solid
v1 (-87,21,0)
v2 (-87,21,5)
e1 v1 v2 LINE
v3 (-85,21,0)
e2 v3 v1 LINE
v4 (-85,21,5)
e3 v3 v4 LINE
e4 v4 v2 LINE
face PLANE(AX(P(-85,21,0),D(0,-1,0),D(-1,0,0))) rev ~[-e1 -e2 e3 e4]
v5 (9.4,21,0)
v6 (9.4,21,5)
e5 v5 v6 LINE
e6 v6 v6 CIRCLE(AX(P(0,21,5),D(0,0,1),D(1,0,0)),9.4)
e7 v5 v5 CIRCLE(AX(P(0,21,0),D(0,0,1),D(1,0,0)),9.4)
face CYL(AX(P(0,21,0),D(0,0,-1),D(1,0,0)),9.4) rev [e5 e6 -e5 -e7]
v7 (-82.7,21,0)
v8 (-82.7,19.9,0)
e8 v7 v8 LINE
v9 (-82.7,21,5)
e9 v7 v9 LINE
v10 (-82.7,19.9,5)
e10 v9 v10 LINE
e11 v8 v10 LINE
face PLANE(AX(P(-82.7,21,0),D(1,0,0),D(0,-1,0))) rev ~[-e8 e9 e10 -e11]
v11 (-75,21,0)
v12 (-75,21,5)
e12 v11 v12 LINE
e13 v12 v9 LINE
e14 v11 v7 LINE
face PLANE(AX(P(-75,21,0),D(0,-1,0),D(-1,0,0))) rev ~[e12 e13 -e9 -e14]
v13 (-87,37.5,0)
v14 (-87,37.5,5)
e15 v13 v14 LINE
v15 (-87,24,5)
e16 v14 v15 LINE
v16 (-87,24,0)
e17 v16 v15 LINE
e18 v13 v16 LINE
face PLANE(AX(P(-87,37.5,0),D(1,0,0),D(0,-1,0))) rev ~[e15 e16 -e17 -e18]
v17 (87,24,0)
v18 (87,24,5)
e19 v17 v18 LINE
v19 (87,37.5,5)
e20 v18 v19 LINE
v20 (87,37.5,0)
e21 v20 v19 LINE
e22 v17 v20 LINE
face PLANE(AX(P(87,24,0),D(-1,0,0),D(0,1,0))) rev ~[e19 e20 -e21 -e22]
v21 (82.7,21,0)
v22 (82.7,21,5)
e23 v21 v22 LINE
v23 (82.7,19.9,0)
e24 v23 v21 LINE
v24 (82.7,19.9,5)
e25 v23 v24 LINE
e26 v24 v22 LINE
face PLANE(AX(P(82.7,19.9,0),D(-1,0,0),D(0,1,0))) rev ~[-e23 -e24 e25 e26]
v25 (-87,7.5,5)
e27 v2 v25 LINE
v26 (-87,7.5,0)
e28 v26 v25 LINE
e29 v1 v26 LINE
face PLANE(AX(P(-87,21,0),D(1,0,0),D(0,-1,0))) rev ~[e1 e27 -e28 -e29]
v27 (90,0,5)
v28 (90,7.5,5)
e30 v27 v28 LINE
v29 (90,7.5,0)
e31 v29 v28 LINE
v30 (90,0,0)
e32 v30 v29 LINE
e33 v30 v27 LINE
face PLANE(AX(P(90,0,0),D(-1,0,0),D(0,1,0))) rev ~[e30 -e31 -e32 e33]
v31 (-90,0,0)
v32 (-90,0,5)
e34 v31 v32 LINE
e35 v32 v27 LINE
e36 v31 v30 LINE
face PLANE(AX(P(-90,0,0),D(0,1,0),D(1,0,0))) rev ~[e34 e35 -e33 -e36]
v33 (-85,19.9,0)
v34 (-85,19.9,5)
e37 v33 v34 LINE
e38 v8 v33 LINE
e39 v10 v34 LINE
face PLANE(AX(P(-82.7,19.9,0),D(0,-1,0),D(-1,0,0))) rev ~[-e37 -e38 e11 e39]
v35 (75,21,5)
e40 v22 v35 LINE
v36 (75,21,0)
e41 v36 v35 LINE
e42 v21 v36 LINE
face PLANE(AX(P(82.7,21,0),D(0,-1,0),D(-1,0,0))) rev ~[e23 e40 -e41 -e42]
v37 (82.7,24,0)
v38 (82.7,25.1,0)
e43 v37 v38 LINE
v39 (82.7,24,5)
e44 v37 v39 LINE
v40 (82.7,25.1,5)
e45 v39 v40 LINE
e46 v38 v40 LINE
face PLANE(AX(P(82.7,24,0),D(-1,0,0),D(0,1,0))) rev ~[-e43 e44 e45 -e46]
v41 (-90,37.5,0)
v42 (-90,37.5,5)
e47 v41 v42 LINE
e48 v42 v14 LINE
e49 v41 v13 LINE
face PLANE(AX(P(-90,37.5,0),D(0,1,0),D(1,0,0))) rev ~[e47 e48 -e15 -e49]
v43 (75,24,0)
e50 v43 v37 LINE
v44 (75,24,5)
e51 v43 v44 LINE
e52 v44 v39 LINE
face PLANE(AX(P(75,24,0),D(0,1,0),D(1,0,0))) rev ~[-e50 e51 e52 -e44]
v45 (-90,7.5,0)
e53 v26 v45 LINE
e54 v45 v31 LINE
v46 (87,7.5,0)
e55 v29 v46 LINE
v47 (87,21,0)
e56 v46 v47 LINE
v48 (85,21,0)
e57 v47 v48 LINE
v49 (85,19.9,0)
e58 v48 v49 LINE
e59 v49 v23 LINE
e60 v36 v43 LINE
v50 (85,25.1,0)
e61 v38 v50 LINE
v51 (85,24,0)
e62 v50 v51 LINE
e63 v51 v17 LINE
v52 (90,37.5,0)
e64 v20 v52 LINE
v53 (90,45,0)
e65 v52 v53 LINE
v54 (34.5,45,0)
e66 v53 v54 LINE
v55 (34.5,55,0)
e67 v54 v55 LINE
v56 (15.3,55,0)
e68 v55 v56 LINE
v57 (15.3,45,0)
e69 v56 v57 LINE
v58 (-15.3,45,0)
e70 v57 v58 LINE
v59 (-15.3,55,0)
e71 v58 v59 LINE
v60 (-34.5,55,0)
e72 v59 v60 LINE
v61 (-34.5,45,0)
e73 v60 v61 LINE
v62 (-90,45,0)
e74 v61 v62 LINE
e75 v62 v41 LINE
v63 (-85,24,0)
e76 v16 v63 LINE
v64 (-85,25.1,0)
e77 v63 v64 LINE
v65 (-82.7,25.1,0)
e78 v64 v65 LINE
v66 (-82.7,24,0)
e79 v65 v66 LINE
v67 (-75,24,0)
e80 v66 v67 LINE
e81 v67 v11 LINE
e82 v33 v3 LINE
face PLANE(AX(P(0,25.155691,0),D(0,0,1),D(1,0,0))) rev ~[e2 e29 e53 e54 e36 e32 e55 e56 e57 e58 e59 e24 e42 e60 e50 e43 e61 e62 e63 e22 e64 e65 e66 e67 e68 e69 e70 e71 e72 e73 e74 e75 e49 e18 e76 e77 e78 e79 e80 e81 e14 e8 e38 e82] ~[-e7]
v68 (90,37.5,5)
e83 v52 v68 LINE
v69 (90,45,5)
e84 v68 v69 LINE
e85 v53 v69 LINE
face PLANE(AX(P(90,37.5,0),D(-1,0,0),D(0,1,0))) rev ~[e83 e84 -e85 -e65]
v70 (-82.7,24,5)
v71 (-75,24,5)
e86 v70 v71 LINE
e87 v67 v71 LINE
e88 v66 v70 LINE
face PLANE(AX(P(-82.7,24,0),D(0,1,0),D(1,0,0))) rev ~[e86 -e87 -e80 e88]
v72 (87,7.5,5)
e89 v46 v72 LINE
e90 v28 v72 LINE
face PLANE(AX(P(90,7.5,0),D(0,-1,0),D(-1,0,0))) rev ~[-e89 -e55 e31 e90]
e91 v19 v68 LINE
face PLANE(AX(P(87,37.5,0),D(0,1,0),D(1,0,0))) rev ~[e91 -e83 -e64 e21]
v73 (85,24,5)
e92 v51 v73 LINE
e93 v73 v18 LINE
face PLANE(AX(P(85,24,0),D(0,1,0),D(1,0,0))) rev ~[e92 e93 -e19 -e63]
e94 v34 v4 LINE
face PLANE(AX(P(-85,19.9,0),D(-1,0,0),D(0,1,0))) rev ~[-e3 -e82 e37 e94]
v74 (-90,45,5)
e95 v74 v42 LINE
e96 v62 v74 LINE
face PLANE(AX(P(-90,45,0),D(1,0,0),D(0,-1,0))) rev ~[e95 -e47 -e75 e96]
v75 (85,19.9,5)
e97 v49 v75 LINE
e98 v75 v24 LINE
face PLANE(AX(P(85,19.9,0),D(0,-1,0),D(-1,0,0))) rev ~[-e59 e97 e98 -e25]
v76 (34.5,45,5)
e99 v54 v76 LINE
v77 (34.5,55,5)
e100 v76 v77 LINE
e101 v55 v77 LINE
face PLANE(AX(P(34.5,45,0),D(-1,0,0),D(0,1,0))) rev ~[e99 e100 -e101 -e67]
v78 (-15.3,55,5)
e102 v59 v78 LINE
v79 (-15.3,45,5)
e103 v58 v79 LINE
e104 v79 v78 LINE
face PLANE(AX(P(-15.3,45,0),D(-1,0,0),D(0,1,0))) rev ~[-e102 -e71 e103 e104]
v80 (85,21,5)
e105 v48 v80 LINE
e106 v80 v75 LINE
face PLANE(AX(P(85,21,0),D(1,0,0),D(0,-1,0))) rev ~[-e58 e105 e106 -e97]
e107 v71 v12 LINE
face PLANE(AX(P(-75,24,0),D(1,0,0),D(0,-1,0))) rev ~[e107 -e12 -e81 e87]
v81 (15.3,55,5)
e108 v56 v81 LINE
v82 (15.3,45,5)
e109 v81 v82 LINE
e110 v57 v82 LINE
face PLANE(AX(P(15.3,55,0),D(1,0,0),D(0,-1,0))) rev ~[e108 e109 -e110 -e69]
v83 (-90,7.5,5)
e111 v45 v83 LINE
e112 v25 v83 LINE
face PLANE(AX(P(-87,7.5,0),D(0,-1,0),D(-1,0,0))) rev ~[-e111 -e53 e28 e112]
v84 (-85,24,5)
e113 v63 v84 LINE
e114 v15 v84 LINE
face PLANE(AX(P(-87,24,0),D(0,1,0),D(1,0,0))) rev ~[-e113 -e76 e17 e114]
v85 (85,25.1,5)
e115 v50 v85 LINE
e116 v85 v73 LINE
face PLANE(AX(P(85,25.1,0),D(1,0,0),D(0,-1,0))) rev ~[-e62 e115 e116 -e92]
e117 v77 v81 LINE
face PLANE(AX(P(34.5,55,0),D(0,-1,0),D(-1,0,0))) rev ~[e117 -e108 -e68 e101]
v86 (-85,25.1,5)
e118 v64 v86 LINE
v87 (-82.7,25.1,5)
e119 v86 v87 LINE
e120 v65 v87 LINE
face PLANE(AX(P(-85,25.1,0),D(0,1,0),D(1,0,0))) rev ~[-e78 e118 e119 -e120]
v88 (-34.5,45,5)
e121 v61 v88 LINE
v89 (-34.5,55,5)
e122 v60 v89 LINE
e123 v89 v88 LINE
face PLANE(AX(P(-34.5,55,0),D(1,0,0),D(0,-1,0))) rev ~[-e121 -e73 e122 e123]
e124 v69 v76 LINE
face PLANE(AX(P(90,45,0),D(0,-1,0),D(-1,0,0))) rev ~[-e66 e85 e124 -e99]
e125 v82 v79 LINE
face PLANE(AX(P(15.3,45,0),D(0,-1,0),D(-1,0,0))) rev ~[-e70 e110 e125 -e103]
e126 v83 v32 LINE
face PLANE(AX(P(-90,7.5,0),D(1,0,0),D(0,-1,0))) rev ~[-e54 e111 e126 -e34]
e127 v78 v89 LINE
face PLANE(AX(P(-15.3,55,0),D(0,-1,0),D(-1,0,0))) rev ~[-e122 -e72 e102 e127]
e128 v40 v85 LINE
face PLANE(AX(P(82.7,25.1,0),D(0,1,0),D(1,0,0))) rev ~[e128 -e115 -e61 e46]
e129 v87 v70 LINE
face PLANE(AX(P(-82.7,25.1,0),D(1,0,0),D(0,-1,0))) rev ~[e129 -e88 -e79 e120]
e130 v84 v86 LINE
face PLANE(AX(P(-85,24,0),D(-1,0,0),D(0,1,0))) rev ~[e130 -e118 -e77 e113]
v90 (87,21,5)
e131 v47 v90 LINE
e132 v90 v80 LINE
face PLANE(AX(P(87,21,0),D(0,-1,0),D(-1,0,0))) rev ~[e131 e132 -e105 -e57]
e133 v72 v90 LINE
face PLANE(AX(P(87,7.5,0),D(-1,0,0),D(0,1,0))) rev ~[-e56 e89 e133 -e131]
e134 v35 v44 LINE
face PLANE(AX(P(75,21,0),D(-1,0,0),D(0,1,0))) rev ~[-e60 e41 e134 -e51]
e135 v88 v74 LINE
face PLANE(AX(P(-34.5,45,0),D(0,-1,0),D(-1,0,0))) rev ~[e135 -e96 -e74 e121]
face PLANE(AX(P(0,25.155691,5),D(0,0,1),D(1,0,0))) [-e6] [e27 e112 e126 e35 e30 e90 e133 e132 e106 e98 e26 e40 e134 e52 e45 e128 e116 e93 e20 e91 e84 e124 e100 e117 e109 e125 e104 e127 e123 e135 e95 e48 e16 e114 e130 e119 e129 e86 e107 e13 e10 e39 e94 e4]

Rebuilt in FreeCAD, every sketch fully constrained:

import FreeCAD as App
import Part
import Sketcher

V = App.Vector


def add_polygon(sketch, points):
    """Adds a closed chain of lines whose ends are joined by coincident constraints."""
    first, n = sketch.GeometryCount, len(points)
    for a, b in zip(points, points[1:] + points[:1]):
        sketch.addGeometry(Part.LineSegment(App.Vector(*a, 0), App.Vector(*b, 0)), False)
    for i in range(n):
        sketch.addConstraint(Sketcher.Constraint("Coincident", first + i, 2, first + (i + 1) % n, 1))

doc = App.newDocument("Part")
body = doc.addObject("PartDesign::Body", "Body")

sketch1 = doc.addObject("Sketcher::SketchObject", "Sketch")
body.addObject(sketch1)
sketch1.AttachmentSupport = (doc.XY_Plane, [""])
sketch1.MapMode = "FlatFace"
add_polygon(sketch1, [(90, 45), (34.5, 45), (34.5, 55), (15.3, 55), (15.3, 45), (-15.3, 45), (-15.3, 55), (-34.5, 55), (-34.5, 45), (-90, 45), (-90, 37.5), (-87, 37.5), (-87, 24), (-85, 24), (-85, 25.1), (-82.7, 25.1), (-82.7, 24), (-75, 24), (-75, 21), (-82.7, 21), (-82.7, 19.9), (-85, 19.9), (-85, 21), (-87, 21), (-87, 7.5), (-90, 7.5), (-90, 0), (90, 0), (90, 7.5), (87, 7.5), (87, 21), (85, 21), (85, 19.9), (82.7, 19.9), (82.7, 21), (75, 21), (75, 24), (82.7, 24), (82.7, 25.1), (85, 25.1), (85, 24), (87, 24), (87, 37.5), (90, 37.5)])
sketch1.addGeometry(Part.Circle(V(0, 21, 0), V(0, 0, 1), 9.4), False)
sketch1.addConstraint([
    Sketcher.Constraint("Horizontal", 0),
    Sketcher.Constraint("Vertical", 1),
    Sketcher.Constraint("Horizontal", 2),
    Sketcher.Constraint("Vertical", 3),
    Sketcher.Constraint("Horizontal", 4),
    Sketcher.Constraint("Vertical", 5),
    Sketcher.Constraint("Horizontal", 6),
    Sketcher.Constraint("Vertical", 7),
    Sketcher.Constraint("Horizontal", 8),
    Sketcher.Constraint("Vertical", 9),
    Sketcher.Constraint("Horizontal", 10),
    Sketcher.Constraint("Vertical", 11),
    Sketcher.Constraint("Horizontal", 12),
    Sketcher.Constraint("Vertical", 13),
    Sketcher.Constraint("Horizontal", 14),
    Sketcher.Constraint("Vertical", 15),
    Sketcher.Constraint("Horizontal", 16),
    Sketcher.Constraint("Vertical", 17),
    Sketcher.Constraint("Horizontal", 18),
    Sketcher.Constraint("Vertical", 19),
    Sketcher.Constraint("Horizontal", 20),
    Sketcher.Constraint("Vertical", 21),
    Sketcher.Constraint("Horizontal", 22),
    Sketcher.Constraint("Vertical", 23),
    Sketcher.Constraint("Horizontal", 24),
    Sketcher.Constraint("Vertical", 25),
    Sketcher.Constraint("Horizontal", 26),
    Sketcher.Constraint("Vertical", 27),
    Sketcher.Constraint("Horizontal", 28),
    Sketcher.Constraint("Vertical", 29),
    Sketcher.Constraint("Horizontal", 30),
    Sketcher.Constraint("Vertical", 31),
    Sketcher.Constraint("Horizontal", 32),
    Sketcher.Constraint("Vertical", 33),
    Sketcher.Constraint("Horizontal", 34),
    Sketcher.Constraint("Vertical", 35),
    Sketcher.Constraint("Horizontal", 36),
    Sketcher.Constraint("Vertical", 37),
    Sketcher.Constraint("Horizontal", 38),
    Sketcher.Constraint("Vertical", 39),
    Sketcher.Constraint("Horizontal", 40),
    Sketcher.Constraint("Vertical", 41),
    Sketcher.Constraint("Horizontal", 42),
    Sketcher.Constraint("Vertical", 43),
    Sketcher.Constraint("Symmetric", 25, 2, 26, 2, -1, 1),
    Sketcher.Constraint("Symmetric", 2, 2, 5, 2, -2),
    Sketcher.Constraint("Symmetric", 0, 2, 7, 2, -2),
    Sketcher.Constraint("Symmetric", 23, 2, 28, 2, -2),
    Sketcher.Constraint("Symmetric", 21, 2, 30, 2, -2),
    Sketcher.Constraint("Symmetric", 19, 2, 32, 2, -2),
    Sketcher.Constraint("Symmetric", 17, 2, 34, 2, -2),
    Sketcher.Constraint("Symmetric", 15, 2, 36, 2, -2),
    Sketcher.Constraint("Symmetric", 13, 2, 38, 2, -2),
    Sketcher.Constraint("Symmetric", 11, 2, 40, 2, -2),
    Sketcher.Constraint("Symmetric", 9, 2, 42, 2, -2),
    Sketcher.Constraint("PointOnObject", 44, 3, -2),
    Sketcher.Constraint("Horizontal", 0, 2, 3, 2),
    Sketcher.Constraint("Horizontal", 12, 2, 15, 2),
    Sketcher.Constraint("Horizontal", 44, 3, 17, 2),
    Sketcher.Constraint("Horizontal", 18, 2, 21, 2),
    Sketcher.Constraint("Vertical", 15, 2, 18, 2),
    Sketcher.Constraint("Vertical", 13, 2, 20, 2),
    Sketcher.Constraint("Vertical", 11, 2, 22, 2),
    Sketcher.Constraint("Vertical", 9, 2, 24, 2),
    Sketcher.Constraint("Equal", 42, 17),
    Sketcher.Constraint("Equal", 15, 19),
    Sketcher.Constraint("Equal", 11, 23),
    Sketcher.Constraint("Equal", 9, 25),
    Sketcher.Constraint("Diameter", 44, 18.8),
    Sketcher.Constraint("DistanceX", 10, 1, 10, 2, 3.0),
    Sketcher.Constraint("DistanceX", 12, 1, 12, 2, 2.0),
    Sketcher.Constraint("DistanceX", 26, 1, 26, 2, 180.0),
    Sketcher.Constraint("DistanceY", 1, 1, 1, 2, 10.0),
    Sketcher.Constraint("DistanceX", 0, 2, 0, 1, 55.5),
    Sketcher.Constraint("DistanceX", 2, 2, 2, 1, 19.2),
    Sketcher.Constraint("DistanceX", 14, 1, 14, 2, 2.3),
    Sketcher.Constraint("DistanceX", 16, 1, 16, 2, 7.7),
    Sketcher.Constraint("DistanceY", 9, 2, 9, 1, 7.5),
    Sketcher.Constraint("DistanceY", 11, 2, 11, 1, 13.5),
    Sketcher.Constraint("DistanceY", 13, 1, 13, 2, 1.1),
])
pad1 = doc.addObject("PartDesign::Pad", "Pad")
body.addObject(pad1)
pad1.Profile = sketch1
pad1.Length = 5

doc.recompute()
